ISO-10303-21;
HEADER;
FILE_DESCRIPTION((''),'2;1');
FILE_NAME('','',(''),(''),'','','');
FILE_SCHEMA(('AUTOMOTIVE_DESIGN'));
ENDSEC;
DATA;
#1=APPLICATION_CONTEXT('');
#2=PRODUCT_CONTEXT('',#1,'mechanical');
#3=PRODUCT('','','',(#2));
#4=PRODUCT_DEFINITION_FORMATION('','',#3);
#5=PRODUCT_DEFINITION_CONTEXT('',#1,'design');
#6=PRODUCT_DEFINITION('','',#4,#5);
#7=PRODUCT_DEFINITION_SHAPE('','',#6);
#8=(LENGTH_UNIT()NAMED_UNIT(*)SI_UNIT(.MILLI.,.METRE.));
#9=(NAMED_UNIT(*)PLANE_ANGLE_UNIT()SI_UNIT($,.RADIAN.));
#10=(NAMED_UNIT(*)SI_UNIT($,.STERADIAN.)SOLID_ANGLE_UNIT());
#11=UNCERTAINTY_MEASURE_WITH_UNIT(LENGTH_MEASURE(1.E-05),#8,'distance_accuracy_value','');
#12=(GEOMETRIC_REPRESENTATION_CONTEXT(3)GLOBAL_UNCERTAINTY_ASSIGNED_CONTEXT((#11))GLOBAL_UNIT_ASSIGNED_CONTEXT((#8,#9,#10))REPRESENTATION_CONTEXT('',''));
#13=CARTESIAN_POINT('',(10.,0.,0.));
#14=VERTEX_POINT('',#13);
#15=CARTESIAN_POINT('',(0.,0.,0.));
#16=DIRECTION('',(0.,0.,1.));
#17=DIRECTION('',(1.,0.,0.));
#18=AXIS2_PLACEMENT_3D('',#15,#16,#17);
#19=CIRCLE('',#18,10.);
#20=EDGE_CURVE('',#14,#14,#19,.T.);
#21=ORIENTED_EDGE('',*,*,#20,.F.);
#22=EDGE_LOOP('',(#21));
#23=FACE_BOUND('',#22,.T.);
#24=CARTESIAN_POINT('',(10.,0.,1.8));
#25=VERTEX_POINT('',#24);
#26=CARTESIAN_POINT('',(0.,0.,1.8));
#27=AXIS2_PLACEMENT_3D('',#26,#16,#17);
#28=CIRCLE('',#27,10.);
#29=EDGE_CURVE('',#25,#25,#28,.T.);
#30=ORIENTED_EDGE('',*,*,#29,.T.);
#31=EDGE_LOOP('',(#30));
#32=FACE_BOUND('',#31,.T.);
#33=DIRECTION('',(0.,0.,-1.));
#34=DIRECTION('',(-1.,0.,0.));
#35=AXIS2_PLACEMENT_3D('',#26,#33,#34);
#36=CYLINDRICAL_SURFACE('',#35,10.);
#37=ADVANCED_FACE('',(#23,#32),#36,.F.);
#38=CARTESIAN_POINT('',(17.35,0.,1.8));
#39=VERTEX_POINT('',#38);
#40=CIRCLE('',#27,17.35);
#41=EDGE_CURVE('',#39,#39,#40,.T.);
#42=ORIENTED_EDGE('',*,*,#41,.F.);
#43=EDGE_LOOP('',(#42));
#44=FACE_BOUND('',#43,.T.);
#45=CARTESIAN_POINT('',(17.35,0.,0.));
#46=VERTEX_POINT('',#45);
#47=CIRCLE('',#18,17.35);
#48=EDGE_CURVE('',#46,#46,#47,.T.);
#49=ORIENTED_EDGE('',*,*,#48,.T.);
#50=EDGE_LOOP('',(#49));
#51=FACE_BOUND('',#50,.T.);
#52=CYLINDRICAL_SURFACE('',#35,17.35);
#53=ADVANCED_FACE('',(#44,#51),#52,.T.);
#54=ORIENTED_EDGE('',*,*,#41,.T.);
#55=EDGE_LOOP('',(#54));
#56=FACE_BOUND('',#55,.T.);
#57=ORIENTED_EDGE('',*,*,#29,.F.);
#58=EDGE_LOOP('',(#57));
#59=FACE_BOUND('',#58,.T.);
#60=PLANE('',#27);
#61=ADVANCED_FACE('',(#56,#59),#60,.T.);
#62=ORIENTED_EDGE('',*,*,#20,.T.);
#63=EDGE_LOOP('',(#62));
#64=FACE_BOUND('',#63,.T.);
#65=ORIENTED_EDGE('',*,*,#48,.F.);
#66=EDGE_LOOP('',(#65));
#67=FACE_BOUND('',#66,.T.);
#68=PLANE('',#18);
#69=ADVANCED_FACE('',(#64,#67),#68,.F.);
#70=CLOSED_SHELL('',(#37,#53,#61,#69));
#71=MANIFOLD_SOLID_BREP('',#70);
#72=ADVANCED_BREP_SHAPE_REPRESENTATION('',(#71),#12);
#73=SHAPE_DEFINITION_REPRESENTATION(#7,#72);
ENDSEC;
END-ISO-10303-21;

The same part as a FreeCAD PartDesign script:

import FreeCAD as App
import Part
import Sketcher
Q = App.Units.Quantity

doc = App.newDocument("Part")
params = doc.addObject("Spreadsheet::Sheet", "Params")
for row, (alias, value) in enumerate([
    ("sketch1_diameter", "20 mm"),
    ("sketch1_diameter2", "34.7 mm"),
    ("pad1_length", "1.8 mm"),
], start=1):
    params.set(f"A{row}", alias)
    params.set(f"B{row}", "=" + value)
    params.setAlias(f"B{row}", alias)

body = doc.addObject("PartDesign::Body", "Body")

sketch1 = body.newObject("Sketcher::SketchObject", "Sketch")
sketch1.AttachmentSupport = (doc.getObject("XY_Plane"), [""])
sketch1.MapMode = "FlatFace"
sketch1.addGeometry(Part.Circle(App.Vector(0, 0, 0), App.Vector(0, 0, 1), 17), False)
sketch1.addGeometry(Part.Circle(App.Vector(0, 0, 0), App.Vector(0, 0, 1), 10), False)
sketch1.addConstraint(Sketcher.Constraint("Coincident", 0, 3, -1, 1))
sketch1.addConstraint(Sketcher.Constraint("Coincident", 1, 3, -1, 1))
sketch1.addConstraint(Sketcher.Constraint("Diameter", 1, Q("20 mm")))
sketch1.addConstraint(Sketcher.Constraint("Diameter", 0, Q("34.7 mm")))
sketch1.setExpression("Constraints[2]", "Params.sketch1_diameter")
sketch1.setExpression("Constraints[3]", "Params.sketch1_diameter2")
pad1 = body.newObject("PartDesign::Pad", "Pad")
pad1.Profile = sketch1
pad1.setExpression("Length", "Params.pad1_length")

doc.recompute()
